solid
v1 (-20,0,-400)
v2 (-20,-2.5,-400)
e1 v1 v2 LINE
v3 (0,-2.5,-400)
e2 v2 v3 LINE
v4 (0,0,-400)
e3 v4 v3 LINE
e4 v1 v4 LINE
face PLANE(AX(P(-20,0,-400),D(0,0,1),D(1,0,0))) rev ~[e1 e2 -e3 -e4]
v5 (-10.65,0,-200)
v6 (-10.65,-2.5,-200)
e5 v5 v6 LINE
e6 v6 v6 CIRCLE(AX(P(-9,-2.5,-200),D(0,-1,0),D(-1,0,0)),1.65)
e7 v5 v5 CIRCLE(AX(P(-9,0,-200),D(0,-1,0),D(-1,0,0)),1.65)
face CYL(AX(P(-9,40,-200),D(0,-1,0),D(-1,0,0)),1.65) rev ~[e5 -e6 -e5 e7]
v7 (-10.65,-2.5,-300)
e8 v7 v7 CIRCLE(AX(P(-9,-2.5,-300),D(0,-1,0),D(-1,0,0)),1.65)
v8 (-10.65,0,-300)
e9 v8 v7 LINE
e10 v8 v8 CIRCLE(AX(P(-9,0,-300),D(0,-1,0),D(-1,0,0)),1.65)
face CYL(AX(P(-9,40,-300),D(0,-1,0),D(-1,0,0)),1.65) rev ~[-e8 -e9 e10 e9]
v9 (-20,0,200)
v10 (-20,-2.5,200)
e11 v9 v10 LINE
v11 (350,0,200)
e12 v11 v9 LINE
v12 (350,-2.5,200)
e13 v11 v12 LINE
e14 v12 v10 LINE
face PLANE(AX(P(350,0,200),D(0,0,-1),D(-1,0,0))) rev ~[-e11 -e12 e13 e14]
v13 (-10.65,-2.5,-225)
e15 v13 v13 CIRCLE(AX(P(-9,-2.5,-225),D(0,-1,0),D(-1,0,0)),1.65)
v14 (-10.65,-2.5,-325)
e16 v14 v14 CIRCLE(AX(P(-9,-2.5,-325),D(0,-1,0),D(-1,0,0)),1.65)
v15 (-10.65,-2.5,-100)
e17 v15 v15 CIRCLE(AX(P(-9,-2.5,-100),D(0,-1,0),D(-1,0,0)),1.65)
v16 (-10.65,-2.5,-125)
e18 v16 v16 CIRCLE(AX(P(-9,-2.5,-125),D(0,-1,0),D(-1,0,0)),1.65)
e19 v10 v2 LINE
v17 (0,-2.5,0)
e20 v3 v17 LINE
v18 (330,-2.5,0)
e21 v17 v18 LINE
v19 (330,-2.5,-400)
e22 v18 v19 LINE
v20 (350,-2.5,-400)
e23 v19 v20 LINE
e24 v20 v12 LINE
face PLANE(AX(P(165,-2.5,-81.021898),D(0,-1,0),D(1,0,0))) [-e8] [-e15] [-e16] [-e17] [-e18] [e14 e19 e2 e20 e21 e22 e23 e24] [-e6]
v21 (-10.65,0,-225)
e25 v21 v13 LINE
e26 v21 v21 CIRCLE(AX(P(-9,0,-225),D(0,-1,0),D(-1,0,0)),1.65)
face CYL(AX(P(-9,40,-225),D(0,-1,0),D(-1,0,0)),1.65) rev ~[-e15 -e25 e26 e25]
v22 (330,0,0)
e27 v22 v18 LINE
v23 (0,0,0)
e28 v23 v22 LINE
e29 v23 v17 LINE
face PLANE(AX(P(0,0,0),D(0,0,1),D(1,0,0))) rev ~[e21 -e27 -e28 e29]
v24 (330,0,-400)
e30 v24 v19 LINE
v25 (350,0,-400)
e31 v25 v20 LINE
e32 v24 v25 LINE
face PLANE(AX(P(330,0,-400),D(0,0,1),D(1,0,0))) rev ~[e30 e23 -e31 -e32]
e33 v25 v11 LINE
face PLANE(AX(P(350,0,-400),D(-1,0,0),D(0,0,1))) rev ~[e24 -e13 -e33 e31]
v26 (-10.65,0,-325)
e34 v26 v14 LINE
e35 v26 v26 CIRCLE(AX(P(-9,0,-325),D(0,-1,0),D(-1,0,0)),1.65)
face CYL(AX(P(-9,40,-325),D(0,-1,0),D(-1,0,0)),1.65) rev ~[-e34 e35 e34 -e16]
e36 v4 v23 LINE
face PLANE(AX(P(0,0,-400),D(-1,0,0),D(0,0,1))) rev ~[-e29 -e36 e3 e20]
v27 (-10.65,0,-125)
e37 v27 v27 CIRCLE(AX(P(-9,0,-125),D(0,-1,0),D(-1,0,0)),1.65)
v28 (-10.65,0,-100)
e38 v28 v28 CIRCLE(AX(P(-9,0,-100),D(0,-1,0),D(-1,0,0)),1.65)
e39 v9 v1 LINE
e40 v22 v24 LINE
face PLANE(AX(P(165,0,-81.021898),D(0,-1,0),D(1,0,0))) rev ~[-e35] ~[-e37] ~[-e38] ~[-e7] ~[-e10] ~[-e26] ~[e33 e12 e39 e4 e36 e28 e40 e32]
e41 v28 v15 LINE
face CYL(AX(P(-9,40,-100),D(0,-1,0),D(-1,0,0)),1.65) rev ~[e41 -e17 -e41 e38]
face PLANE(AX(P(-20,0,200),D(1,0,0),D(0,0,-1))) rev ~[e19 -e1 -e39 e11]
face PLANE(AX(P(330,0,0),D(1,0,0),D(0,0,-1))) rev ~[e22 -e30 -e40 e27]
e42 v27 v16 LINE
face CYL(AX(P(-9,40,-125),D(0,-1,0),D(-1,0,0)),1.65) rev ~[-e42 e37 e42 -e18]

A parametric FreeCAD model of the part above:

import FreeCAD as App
import Part
import Sketcher
from FreeCAD import Vector

doc = App.newDocument("Part")
body = doc.addObject("PartDesign::Body", "Body")

sketch1 = body.newObject("Sketcher::SketchObject", "Sketch")
sketch1.AttachmentSupport = (doc.getObject("XZ_Plane"), [""])
sketch1.MapMode = "FlatFace"
sketch1.addGeometry(Part.LineSegment(Vector(0, -400, 0), Vector(0, 0, 0)), False)
sketch1.addGeometry(Part.LineSegment(Vector(0, 0, 0), Vector(330, 0, 0)), False)
sketch1.addGeometry(Part.LineSegment(Vector(330, 0, 0), Vector(330, -400, 0)), False)
sketch1.addGeometry(Part.LineSegment(Vector(330, -400, 0), Vector(350, -400, 0)), False)
sketch1.addGeometry(Part.LineSegment(Vector(350, -400, 0), Vector(350, 200, 0)), False)
sketch1.addGeometry(Part.LineSegment(Vector(350, 200, 0), Vector(-20, 200, 0)), False)
sketch1.addGeometry(Part.LineSegment(Vector(-20, 200, 0), Vector(-20, -400, 0)), False)
sketch1.addGeometry(Part.LineSegment(Vector(-20, -400, 0), Vector(0, -400, 0)), False)
sketch1.addConstraint(Sketcher.Constraint("Coincident", 0, 2, 1, 1))
sketch1.addConstraint(Sketcher.Constraint("Coincident", 1, 2, 2, 1))
sketch1.addConstraint(Sketcher.Constraint("Coincident", 2, 2, 3, 1))
sketch1.addConstraint(Sketcher.Constraint("Coincident", 3, 2, 4, 1))
sketch1.addConstraint(Sketcher.Constraint("Coincident", 4, 2, 5, 1))
sketch1.addConstraint(Sketcher.Constraint("Coincident", 5, 2, 6, 1))
sketch1.addConstraint(Sketcher.Constraint("Coincident", 6, 2, 7, 1))
sketch1.addConstraint(Sketcher.Constraint("Coincident", 7, 2, 0, 1))
sketch1.addConstraint(Sketcher.Constraint("Vertical", 0))
sketch1.addConstraint(Sketcher.Constraint("Horizontal", 1))
sketch1.addConstraint(Sketcher.Constraint("Vertical", 2))
sketch1.addConstraint(Sketcher.Constraint("Horizontal", 3))
sketch1.addConstraint(Sketcher.Constraint("Vertical", 4))
sketch1.addConstraint(Sketcher.Constraint("Horizontal", 5))
sketch1.addConstraint(Sketcher.Constraint("Vertical", 6))
sketch1.addConstraint(Sketcher.Constraint("Horizontal", 7))
sketch1.addConstraint(Sketcher.Constraint("Coincident", 0, 2, -1, 1))
sketch1.addConstraint(Sketcher.Constraint("Horizontal", 3, 2, 6, 2))
sketch1.addConstraint(Sketcher.Constraint("Equal", 3, 7))
sketch1.addConstraint(Sketcher.Constraint("DistanceX", 1, 1, 1, 2, 330.0))
sketch1.addConstraint(Sketcher.Constraint("DistanceX", 3, 1, 3, 2, 20.0))
sketch1.addConstraint(Sketcher.Constraint("DistanceY", 0, 1, 0, 2, 400.0))
sketch1.addConstraint(Sketcher.Constraint("DistanceY", 4, 1, 4, 2, 600.0))
pad1 = body.newObject("PartDesign::Pad", "Pad")
pad1.Profile = sketch1
pad1.Length = 2.5

sketch2 = body.newObject("Sketcher::SketchObject", "Sketch001")
sketch2.AttachmentSupport = (doc.getObject("XZ_Plane"), [""])
sketch2.MapMode = "FlatFace"
sketch2.addGeometry(Part.Circle(Vector(-9, -100, 0), Vector(0, 0, 1), 1.65), False)
sketch2.addGeometry(Part.Circle(Vector(-9, -200, 0), Vector(0, 0, 1), 1.65), False)
sketch2.addGeometry(Part.Circle(Vector(-9, -300, 0), Vector(0, 0, 1), 1.65), False)
sketch2.addGeometry(Part.Circle(Vector(-9, -125, 0), Vector(0, 0, 1), 1.65), False)
sketch2.addGeometry(Part.Circle(Vector(-9, -225, 0), Vector(0, 0, 1), 1.65), False)
sketch2.addGeometry(Part.Circle(Vector(-9, -325, 0), Vector(0, 0, 1), 1.65), False)
sketch2.addConstraint(Sketcher.Constraint("Equal", 0, 1))
sketch2.addConstraint(Sketcher.Constraint("Equal", 1, 2))
sketch2.addConstraint(Sketcher.Constraint("Equal", 2, 3))
sketch2.addConstraint(Sketcher.Constraint("Equal", 3, 4))
sketch2.addConstraint(Sketcher.Constraint("Equal", 4, 5))
sketch2.addConstraint(Sketcher.Constraint("Vertical", 0, 3, 1, 3))
sketch2.addConstraint(Sketcher.Constraint("Vertical", 1, 3, 2, 3))
sketch2.addConstraint(Sketcher.Constraint("Vertical", 2, 3, 3, 3))
sketch2.addConstraint(Sketcher.Constraint("Vertical", 3, 3, 4, 3))
sketch2.addConstraint(Sketcher.Constraint("Vertical", 4, 3, 5, 3))
sketch2.addConstraint(Sketcher.Constraint("Diameter", 0, 3.3))
sketch2.addConstraint(Sketcher.Constraint("DistanceX", 0, 3, -1, 1, 9.0))
sketch2.addConstraint(Sketcher.Constraint("DistanceY", 0, 3, -1, 1, 100.0))
sketch2.addConstraint(Sketcher.Constraint("DistanceY", 1, 3, -1, 1, 200.0))
sketch2.addConstraint(Sketcher.Constraint("DistanceY", 2, 3, -1, 1, 300.0))
sketch2.addConstraint(Sketcher.Constraint("DistanceY", 3, 3, -1, 1, 125.0))
sketch2.addConstraint(Sketcher.Constraint("DistanceY", 4, 3, -1, 1, 225.0))
sketch2.addConstraint(Sketcher.Constraint("DistanceY", 5, 3, -1, 1, 325.0))
doc.recompute()
hole = body.newObject("PartDesign::Hole", "Hole")
hole.Profile = sketch2
hole.ThreadType = "None"
hole.Diameter = 3.3
hole.DepthType = "Dimension"
hole.Depth = 40
hole.DrillPoint = "Angled"
hole.DrillPointAngle = 118
hole.Reversed = True

doc.recompute()
